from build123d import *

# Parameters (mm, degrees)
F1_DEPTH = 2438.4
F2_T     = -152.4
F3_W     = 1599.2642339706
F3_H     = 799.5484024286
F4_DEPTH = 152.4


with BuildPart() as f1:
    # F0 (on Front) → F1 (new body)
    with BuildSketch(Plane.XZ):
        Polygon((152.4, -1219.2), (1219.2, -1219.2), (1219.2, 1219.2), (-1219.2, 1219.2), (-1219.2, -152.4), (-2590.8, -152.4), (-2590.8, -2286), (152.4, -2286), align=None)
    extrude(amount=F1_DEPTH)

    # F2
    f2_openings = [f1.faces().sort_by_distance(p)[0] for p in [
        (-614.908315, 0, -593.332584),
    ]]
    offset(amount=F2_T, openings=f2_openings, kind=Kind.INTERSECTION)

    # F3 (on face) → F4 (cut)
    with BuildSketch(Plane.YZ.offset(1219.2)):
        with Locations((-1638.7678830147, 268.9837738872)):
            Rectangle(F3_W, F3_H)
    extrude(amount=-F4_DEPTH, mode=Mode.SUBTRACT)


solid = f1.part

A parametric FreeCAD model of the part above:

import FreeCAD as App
import Part
import Sketcher
from FreeCAD import Vector
Q = App.Units.Quantity


def faces_at(feature, points):
    """Names of the faces that lie closest to the given points."""
    faces = feature.Shape.Faces
    near = lambda p: min(range(len(faces)), key=lambda i: faces[i].distToShape(Part.Vertex(*p))[0])
    return sorted({f"Face{near(p) + 1}" for p in points})


def add_polygon(sketch, points):
    """Adds a closed chain of lines whose ends are joined by coincident constraints."""
    first, n = sketch.GeometryCount, len(points)
    for a, b in zip(points, points[1:] + points[:1]):
        sketch.addGeometry(Part.LineSegment(App.Vector(*a, 0), App.Vector(*b, 0)), False)
    for i in range(n):
        sketch.addConstraint(Sketcher.Constraint("Coincident", first + i, 2, first + (i + 1) % n, 1))

doc = App.newDocument("Part")
body = doc.addObject("PartDesign::Body", "Body")

# Sketch on XZ plane
sketch1 = body.newObject("Sketcher::SketchObject", "Sketch")
sketch1.AttachmentSupport = (doc.getObject("XZ_Plane"), [""])
sketch1.MapMode = "FlatFace"
add_polygon(sketch1, [(152, -1219), (1219, -1219), (1219, 1219), (-1219, 1219), (-1219, -152), (-2591, -152), (-2591, -2286), (152, -2286)])  # lines 0-7
sketch1.addConstraint(Sketcher.Constraint("Horizontal", 0))
sketch1.addConstraint(Sketcher.Constraint("Vertical", 1))
sketch1.addConstraint(Sketcher.Constraint("Horizontal", 2))
sketch1.addConstraint(Sketcher.Constraint("Vertical", 3))
sketch1.addConstraint(Sketcher.Constraint("Horizontal", 4))
sketch1.addConstraint(Sketcher.Constraint("Vertical", 5))
sketch1.addConstraint(Sketcher.Constraint("Horizontal", 6))
sketch1.addConstraint(Sketcher.Constraint("Vertical", 7))
sketch1.addConstraint(Sketcher.Constraint("Symmetric", 0, 2, 2, 2, -1, 1))
sketch1.addConstraint(Sketcher.Constraint("Equal", 2, 1))
sketch1.addConstraint(Sketcher.Constraint("Equal", 4, 3))
sketch1.addConstraint(Sketcher.Constraint("Equal", 0, 7))
sketch1.addConstraint(Sketcher.Constraint("DistanceX", 0, 1, 0, 2, Q("42 in")))
sketch1.addConstraint(Sketcher.Constraint("DistanceX", 2, 2, 2, 1, Q("96 in")))
sketch1.addConstraint(Sketcher.Constraint("DistanceX", 4, 2, 4, 1, Q("54 in")))
pad1 = body.newObject("PartDesign::Pad", "Pad")
pad1.Profile = sketch1
pad1.Length = Q("96 in")
doc.recompute()

thickness = body.newObject("PartDesign::Thickness", "Thickness")
thickness.Base = (pad1, faces_at(pad1, [(-685.8, 0, -533.4)]))
thickness.Value = Q("6 in")
thickness.Reversed = True
thickness.Join = "Intersection"

# Sketch on YZ plane
sketch2 = body.newObject("Sketcher::SketchObject", "Sketch001")
sketch2.AttachmentSupport = (doc.getObject("YZ_Plane"), [""])
sketch2.MapMode = "FlatFace"
sketch2.AttachmentOffset = App.Placement(Vector(0, 0, 48 * 25.4), App.Rotation())
add_polygon(sketch2, [(-2438, 669), (-2438, -131), (-839, -131), (-839, 669)])  # lines 0-3
sketch2.addConstraint(Sketcher.Constraint("Vertical", 0))
sketch2.addConstraint(Sketcher.Constraint("Horizontal", 1))
sketch2.addConstraint(Sketcher.Constraint("Vertical", 2))
sketch2.addConstraint(Sketcher.Constraint("Horizontal", 3))
sketch2.addConstraint(Sketcher.Constraint("DistanceX", 0, 2, -1, 1, Q("96 in")))
sketch2.addConstraint(Sketcher.Constraint("DistanceX", 1, 1, 1, 2, 1599.264234))
sketch2.addConstraint(Sketcher.Constraint("DistanceY", 0, 2, 0, 1, 799.548402))
sketch2.addConstraint(Sketcher.Constraint("DistanceY", 0, 2, -1, 1, 130.790427))
pocket1 = body.newObject("PartDesign::Pocket", "Pocket")
pocket1.Profile = sketch2
pocket1.Length = Q("6 in")

doc.recompute()
